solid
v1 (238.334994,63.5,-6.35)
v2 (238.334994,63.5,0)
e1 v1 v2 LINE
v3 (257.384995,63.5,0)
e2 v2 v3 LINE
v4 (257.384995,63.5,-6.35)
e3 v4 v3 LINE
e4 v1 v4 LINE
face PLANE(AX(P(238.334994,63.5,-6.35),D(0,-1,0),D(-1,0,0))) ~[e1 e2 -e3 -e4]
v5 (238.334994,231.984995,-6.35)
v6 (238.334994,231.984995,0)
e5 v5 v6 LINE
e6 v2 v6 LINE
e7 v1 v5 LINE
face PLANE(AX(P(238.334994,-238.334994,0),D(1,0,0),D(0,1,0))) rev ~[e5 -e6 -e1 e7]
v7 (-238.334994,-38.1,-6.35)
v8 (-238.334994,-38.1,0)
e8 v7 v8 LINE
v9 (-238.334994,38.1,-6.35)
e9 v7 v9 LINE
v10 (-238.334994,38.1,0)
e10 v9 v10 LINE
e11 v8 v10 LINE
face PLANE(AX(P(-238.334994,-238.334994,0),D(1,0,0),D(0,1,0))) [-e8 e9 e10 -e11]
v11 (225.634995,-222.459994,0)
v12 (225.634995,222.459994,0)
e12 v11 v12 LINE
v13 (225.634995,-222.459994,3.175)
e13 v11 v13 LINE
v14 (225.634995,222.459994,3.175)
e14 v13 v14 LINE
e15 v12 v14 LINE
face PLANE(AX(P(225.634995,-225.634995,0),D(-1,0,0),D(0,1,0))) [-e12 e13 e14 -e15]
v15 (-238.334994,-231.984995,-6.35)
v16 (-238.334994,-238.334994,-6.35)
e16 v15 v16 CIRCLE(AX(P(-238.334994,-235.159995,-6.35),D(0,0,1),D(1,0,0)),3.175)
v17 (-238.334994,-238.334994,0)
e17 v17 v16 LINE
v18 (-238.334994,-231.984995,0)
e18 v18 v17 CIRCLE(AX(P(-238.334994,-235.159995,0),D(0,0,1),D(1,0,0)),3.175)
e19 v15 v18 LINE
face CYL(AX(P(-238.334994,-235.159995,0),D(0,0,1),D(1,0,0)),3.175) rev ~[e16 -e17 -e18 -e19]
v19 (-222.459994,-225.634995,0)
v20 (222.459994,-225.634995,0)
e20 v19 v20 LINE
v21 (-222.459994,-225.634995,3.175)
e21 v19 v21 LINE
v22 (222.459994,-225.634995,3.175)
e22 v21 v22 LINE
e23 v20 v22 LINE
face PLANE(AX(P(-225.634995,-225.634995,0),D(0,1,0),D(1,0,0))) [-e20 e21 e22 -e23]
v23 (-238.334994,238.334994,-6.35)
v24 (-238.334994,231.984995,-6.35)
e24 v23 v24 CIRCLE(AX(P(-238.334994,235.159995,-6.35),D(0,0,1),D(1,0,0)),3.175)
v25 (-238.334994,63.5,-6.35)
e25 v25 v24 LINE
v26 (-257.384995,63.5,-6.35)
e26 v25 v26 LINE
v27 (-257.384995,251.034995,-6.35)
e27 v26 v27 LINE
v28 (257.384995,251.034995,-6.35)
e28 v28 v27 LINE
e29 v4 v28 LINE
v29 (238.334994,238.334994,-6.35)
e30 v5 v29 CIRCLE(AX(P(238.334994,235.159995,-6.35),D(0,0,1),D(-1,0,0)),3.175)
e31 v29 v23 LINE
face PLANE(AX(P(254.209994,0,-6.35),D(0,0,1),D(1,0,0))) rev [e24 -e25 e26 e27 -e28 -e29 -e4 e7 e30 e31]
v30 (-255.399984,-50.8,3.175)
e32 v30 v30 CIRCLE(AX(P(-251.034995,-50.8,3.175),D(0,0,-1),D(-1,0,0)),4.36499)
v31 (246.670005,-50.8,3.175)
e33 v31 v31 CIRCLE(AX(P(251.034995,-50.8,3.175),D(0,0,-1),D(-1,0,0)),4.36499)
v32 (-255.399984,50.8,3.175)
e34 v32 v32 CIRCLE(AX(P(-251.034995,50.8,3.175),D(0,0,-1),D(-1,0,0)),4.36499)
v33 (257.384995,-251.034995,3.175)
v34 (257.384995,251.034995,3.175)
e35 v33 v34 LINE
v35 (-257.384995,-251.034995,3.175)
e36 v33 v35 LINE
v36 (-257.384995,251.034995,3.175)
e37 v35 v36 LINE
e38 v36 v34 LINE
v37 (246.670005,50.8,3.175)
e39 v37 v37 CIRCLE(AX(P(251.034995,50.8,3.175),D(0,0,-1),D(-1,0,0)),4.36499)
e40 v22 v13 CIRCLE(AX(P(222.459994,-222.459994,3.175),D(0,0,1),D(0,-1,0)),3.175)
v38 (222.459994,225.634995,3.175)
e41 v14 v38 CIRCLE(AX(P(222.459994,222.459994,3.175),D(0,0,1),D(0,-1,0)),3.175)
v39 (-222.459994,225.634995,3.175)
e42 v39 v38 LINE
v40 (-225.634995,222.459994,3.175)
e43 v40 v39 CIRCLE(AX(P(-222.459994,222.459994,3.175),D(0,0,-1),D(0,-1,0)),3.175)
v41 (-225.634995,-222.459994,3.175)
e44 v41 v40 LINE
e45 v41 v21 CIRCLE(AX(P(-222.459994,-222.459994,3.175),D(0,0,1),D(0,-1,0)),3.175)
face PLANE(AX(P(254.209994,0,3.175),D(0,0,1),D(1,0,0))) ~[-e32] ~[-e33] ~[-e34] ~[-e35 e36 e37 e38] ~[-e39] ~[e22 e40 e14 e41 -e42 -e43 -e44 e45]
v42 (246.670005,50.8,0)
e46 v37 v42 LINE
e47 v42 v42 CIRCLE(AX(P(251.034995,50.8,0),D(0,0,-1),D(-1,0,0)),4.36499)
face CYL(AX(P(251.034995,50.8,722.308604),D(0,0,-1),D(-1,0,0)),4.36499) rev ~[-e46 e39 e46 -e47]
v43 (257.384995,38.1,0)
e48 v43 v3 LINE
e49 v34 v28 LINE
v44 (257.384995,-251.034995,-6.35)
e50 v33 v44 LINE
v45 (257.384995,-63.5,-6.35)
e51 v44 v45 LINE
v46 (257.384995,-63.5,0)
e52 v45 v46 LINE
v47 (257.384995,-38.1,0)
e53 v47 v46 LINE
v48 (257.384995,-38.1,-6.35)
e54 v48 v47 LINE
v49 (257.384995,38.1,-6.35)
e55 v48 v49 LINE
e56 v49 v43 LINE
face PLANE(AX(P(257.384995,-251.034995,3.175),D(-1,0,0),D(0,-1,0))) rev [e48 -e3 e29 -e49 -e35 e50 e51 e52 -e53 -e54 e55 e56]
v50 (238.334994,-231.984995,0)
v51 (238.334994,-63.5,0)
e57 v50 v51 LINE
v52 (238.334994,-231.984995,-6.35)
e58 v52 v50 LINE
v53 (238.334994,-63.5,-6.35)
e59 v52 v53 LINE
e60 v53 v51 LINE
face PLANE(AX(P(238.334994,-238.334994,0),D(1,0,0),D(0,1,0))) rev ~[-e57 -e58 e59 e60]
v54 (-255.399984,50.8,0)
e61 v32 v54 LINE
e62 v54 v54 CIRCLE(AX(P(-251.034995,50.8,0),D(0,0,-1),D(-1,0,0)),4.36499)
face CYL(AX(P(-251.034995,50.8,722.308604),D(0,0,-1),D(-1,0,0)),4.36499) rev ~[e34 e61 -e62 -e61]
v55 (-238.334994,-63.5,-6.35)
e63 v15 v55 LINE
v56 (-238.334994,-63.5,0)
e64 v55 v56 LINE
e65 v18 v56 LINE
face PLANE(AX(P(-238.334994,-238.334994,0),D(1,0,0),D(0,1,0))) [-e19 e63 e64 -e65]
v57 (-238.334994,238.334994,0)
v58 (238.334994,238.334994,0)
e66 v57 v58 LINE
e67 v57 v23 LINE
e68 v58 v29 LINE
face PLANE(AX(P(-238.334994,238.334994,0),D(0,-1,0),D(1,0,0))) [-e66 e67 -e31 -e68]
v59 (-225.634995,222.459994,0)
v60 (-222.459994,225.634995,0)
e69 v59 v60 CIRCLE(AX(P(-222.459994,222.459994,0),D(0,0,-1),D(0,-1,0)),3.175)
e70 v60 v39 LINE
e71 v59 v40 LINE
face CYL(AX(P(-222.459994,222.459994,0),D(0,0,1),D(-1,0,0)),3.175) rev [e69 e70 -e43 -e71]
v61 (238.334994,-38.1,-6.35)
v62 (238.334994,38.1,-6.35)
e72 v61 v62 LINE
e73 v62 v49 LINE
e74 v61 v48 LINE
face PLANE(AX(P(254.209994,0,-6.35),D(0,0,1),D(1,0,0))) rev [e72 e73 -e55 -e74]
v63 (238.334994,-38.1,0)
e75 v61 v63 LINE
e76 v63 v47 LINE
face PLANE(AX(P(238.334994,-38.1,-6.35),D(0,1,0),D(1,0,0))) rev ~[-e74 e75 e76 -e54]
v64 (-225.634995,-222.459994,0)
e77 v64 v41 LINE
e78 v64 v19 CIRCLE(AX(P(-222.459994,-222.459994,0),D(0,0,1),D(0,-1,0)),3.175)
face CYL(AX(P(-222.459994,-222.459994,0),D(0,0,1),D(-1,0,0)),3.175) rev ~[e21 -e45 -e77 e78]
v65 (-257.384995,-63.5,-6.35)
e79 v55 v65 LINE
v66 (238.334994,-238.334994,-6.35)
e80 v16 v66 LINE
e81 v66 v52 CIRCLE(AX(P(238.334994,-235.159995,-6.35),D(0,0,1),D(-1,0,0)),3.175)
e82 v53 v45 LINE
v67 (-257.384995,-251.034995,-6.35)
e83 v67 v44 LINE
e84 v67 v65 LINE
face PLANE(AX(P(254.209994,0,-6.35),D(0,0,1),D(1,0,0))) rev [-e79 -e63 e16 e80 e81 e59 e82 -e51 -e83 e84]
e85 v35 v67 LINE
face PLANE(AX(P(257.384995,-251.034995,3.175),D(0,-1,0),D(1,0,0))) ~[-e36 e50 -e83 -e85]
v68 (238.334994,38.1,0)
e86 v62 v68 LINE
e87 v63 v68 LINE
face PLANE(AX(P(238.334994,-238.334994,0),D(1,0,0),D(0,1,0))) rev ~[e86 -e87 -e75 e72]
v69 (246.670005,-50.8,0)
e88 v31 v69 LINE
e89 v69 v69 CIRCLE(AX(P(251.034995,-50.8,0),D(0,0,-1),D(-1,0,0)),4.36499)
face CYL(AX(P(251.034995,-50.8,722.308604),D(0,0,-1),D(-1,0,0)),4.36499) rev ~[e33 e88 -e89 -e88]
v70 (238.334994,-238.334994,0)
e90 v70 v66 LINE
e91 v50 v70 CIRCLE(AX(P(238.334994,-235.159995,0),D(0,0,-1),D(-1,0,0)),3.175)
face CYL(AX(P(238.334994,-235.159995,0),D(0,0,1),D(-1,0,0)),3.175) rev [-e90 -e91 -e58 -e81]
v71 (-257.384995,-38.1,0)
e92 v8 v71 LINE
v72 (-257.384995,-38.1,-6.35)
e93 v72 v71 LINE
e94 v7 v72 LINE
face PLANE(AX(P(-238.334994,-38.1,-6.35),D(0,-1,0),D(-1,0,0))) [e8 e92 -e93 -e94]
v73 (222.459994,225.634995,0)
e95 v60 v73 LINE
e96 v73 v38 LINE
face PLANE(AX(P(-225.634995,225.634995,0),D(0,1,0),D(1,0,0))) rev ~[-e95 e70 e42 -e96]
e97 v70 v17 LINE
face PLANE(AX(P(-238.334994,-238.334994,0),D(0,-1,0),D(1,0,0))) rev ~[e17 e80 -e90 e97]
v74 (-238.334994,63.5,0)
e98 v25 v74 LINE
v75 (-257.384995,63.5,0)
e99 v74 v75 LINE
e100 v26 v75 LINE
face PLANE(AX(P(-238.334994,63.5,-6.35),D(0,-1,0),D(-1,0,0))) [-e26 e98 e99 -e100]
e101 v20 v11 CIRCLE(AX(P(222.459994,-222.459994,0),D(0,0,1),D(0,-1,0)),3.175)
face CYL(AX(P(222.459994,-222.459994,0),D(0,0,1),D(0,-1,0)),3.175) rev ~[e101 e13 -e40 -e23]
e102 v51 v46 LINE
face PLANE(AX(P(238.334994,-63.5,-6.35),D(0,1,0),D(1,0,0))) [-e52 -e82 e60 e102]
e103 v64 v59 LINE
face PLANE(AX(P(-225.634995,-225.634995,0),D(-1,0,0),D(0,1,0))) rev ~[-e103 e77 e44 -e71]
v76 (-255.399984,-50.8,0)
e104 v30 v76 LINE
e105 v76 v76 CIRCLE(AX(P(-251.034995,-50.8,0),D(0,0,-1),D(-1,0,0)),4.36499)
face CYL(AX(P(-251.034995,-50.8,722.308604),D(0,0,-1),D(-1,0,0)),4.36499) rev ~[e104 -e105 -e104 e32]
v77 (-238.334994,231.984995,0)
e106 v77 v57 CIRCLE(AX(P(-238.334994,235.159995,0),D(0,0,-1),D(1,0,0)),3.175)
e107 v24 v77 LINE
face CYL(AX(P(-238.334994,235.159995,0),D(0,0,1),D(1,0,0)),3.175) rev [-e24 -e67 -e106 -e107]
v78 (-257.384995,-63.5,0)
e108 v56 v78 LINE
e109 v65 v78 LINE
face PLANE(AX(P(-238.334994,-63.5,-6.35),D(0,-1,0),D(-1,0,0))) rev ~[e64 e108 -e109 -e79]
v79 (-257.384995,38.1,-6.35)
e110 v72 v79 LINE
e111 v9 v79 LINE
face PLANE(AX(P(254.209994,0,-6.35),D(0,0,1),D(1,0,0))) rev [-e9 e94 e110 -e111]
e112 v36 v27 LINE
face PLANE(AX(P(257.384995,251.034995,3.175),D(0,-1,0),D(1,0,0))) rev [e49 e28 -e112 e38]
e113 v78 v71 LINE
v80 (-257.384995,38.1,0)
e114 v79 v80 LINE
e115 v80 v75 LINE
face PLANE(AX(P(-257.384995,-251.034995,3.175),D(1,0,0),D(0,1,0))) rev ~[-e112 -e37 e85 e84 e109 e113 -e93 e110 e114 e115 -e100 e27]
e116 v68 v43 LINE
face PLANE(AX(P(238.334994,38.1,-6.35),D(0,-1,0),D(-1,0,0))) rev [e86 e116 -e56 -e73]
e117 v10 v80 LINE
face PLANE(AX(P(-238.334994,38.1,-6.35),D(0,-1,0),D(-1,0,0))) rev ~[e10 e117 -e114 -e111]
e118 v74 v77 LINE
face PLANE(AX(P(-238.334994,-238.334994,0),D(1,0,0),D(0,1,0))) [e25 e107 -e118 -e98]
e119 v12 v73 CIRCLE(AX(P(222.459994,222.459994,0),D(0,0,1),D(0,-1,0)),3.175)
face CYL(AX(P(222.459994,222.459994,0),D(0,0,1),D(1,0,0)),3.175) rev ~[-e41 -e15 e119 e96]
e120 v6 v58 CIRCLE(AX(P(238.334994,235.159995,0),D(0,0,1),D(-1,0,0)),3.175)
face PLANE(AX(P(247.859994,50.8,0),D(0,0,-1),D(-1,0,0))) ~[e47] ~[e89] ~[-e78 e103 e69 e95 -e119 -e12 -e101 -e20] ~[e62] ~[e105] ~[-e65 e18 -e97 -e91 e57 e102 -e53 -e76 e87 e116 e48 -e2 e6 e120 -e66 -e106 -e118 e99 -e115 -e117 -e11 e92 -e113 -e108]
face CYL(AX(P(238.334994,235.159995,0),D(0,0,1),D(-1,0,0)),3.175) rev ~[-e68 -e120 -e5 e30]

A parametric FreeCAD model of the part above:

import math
import FreeCAD as App
import Part
import Sketcher

V = App.Vector
Q = App.Units.Quantity


def edges_at(feature, points):
    """Names of the edges that pass closest to the given points."""
    edges = feature.Shape.Edges
    near = lambda p: min(range(len(edges)), key=lambda i: edges[i].distToShape(Part.Vertex(*p))[0])
    return sorted({f"Edge{near(p) + 1}" for p in points})


def add_polygon(sketch, points):
    """Adds a closed chain of lines whose ends are joined by coincident constraints."""
    first, n = sketch.GeometryCount, len(points)
    for a, b in zip(points, points[1:] + points[:1]):
        sketch.addGeometry(Part.LineSegment(App.Vector(*a, 0), App.Vector(*b, 0)), False)
    for i in range(n):
        sketch.addConstraint(Sketcher.Constraint("Coincident", first + i, 2, first + (i + 1) % n, 1))

doc = App.newDocument("Part")
body = doc.addObject("PartDesign::Body", "Body")

# Sketch on XY plane
sketch1 = body.newObject("Sketcher::SketchObject", "Sketch")
sketch1.AttachmentSupport = (doc.getObject("XY_Plane"), [""])
sketch1.MapMode = "FlatFace"
add_polygon(sketch1, [(-251, 251), (-251, -251), (251, -251), (251, 251)])  # lines 0-3
add_polygon(sketch1, [(238, -238), (-238, -238), (-238, 238), (238, 238)])  # lines 4-7
sketch1.addConstraint([
    Sketcher.Constraint("Vertical", 0),
    Sketcher.Constraint("Horizontal", 1),
    Sketcher.Constraint("Vertical", 2),
    Sketcher.Constraint("Horizontal", 3),
    Sketcher.Constraint("Horizontal", 4),
    Sketcher.Constraint("Vertical", 5),
    Sketcher.Constraint("Horizontal", 6),
    Sketcher.Constraint("Vertical", 7),
    Sketcher.Constraint("Symmetric", 0, 2, 2, 2, -1, 1),
    Sketcher.Constraint("Symmetric", 4, 2, 6, 2, -1, 1),
    Sketcher.Constraint("Equal", 3, 0),
    Sketcher.Constraint("Equal", 6, 5),
    Sketcher.Constraint("DistanceX", 0, 2, 4, 2, Q("0.5 in")),
    Sketcher.Constraint("DistanceX", 1, 1, 1, 2, 502.069989),
])
pad1 = body.newObject("PartDesign::Pad", "Pad")
pad1.Profile = sketch1
pad1.Length = Q("0.25 in")
pad1.Reversed = True

# Sketch on XY plane
sketch2 = body.newObject("Sketcher::SketchObject", "Sketch001")
sketch2.AttachmentSupport = (doc.getObject("XY_Plane"), [""])
sketch2.MapMode = "FlatFace"
add_polygon(sketch2, [(-251, 251), (-251, -251), (251, -251), (251, 251)])  # lines 0-3
add_polygon(sketch2, [(226, -226), (-226, -226), (-226, 226), (226, 226)])  # lines 4-7
sketch2.addConstraint([
    Sketcher.Constraint("Vertical", 0),
    Sketcher.Constraint("Horizontal", 1),
    Sketcher.Constraint("Vertical", 2),
    Sketcher.Constraint("Horizontal", 3),
    Sketcher.Constraint("Horizontal", 4),
    Sketcher.Constraint("Vertical", 5),
    Sketcher.Constraint("Horizontal", 6),
    Sketcher.Constraint("Vertical", 7),
    Sketcher.Constraint("Symmetric", 0, 2, 2, 2, -1, 1),
    Sketcher.Constraint("Symmetric", 4, 2, 6, 2, -1, 1),
    Sketcher.Constraint("Equal", 3, 0),
    Sketcher.Constraint("Equal", 6, 5),
    Sketcher.Constraint("DistanceX", 0, 2, 4, 2, Q("1 in")),
    Sketcher.Constraint("DistanceX", 1, 1, 1, 2, 502.069989),
])
pad2 = body.newObject("PartDesign::Pad", "Pad001")
pad2.Profile = sketch2
pad2.Length = Q("0.125 in")

# Sketch on XY plane
sketch3 = body.newObject("Sketcher::SketchObject", "Sketch002")
sketch3.AttachmentSupport = (doc.getObject("XY_Plane"), [""])
sketch3.MapMode = "FlatFace"
sketch3.AttachmentOffset = App.Placement(V(0, 0, 0.125 * 25.4), App.Rotation())
add_polygon(sketch3, [(-257, 251), (-257, -251), (-251, -251), (-251, 251)])  # lines 0-3
sketch3.addConstraint([
    Sketcher.Constraint("Vertical", 0),
    Sketcher.Constraint("Horizontal", 1),
    Sketcher.Constraint("Vertical", 2),
    Sketcher.Constraint("Horizontal", 3),
    Sketcher.Constraint("DistanceX", 1, 1, 1, 2, Q("0.25 in")),
    Sketcher.Constraint("DistanceY", 0, 2, 0, 1, 502.069989),
    Sketcher.Constraint("DistanceX", 0, 2, -1, 1, 257.384995),
    Sketcher.Constraint("DistanceY", 0, 2, -1, 1, 251.034995),
])
pad3 = body.newObject("PartDesign::Pad", "Pad002")
pad3.Profile = sketch3
pad3.Length = Q("0.375 in")
pad3.Reversed = True
doc.recompute()

mirrored = body.newObject("PartDesign::Mirrored", "Mirrored")
mirrored.Originals = [pad3]
mirrored.MirrorPlane = (doc.getObject("YZ_Plane"), [""])
body.Tip = mirrored

# Sketch on XY plane
sketch4 = body.newObject("Sketcher::SketchObject", "Sketch003")
sketch4.AttachmentSupport = (doc.getObject("XY_Plane"), [""])
sketch4.MapMode = "FlatFace"
sketch4.AttachmentOffset = App.Placement(V(0, 0, 0.125 * 25.4), App.Rotation())
sketch4.addGeometry([
    Part.Circle(V(251, -50.8, 0), V(0, 0, 1), 4.4),
    Part.Circle(V(251, 50.8, 0), V(0, 0, 1), 4.4),
    Part.Circle(V(-251, -50.8, 0), V(0, 0, 1), 4.4),
    Part.Circle(V(-251, 50.8, 0), V(0, 0, 1), 4.4),
], False)
sketch4.addConstraint([
    Sketcher.Constraint("Equal", 0, 1),
    Sketcher.Constraint("Equal", 1, 2),
    Sketcher.Constraint("Equal", 2, 3),
    Sketcher.Constraint("Symmetric", 1, 3, 2, 3, -1, 1),
    Sketcher.Constraint("Symmetric", 0, 3, 3, 3, -1, 1),
    Sketcher.Constraint("Symmetric", 0, 3, 2, 3, -2),
    Sketcher.Constraint("DistanceY", 0, 3, -1, 1, Q("2 in")),
    Sketcher.Constraint("Diameter", 0, Q("0.3437 in")),
    Sketcher.Constraint("DistanceX", 2, 3, 0, 3, 502.069989),
])
doc.recompute()
hole = body.newObject("PartDesign::Hole", "Hole")
hole.Profile = sketch4
hole.ThreadType = "None"
hole.Diameter = Q("0.3437 in")
hole.DepthType = "ThroughAll"

# Sketch on XY plane
sketch5 = body.newObject("Sketcher::SketchObject", "Sketch004")
sketch5.AttachmentSupport = (doc.getObject("XY_Plane"), [""])
sketch5.MapMode = "FlatFace"
sketch5.AttachmentOffset = App.Placement(V(0, 0, -0.25 * 25.4), App.Rotation())
add_polygon(sketch5, [(-238, 64), (-238, 38), (-257, 38), (-257, 64)])  # lines 0-3
sketch5.addConstraint([
    Sketcher.Constraint("Vertical", 0),
    Sketcher.Constraint("Horizontal", 1),
    Sketcher.Constraint("Vertical", 2),
    Sketcher.Constraint("Horizontal", 3),
    Sketcher.Constraint("DistanceY", 0, 2, 0, 1, Q("1 in")),
    Sketcher.Constraint("DistanceX", 1, 2, 1, 1, Q("0.75 in")),
    Sketcher.Constraint("DistanceY", -1, 1, 0, 2, Q("1.5 in")),
    Sketcher.Constraint("DistanceX", 0, 2, -1, 1, 238.334994),
])
pocket1 = body.newObject("PartDesign::Pocket", "Pocket")
pocket1.Profile = sketch5
pocket1.Length = Q("0.25 in")
pocket1.Reversed = True
doc.recompute()

linearpattern = body.newObject("PartDesign::LinearPattern", "LinearPattern")
linearpattern.Originals = [pocket1]
linearpattern.Direction = (doc.getObject("Y_Axis"), [""])
linearpattern.Mode = "offset"
linearpattern.Offset = Q("4 in")
linearpattern.Occurrences = 2
linearpattern.Reversed = True
body.Tip = linearpattern
doc.recompute()

mirrored2 = body.newObject("PartDesign::Mirrored", "Mirrored001")
mirrored2.Originals = [pocket1]
mirrored2.MirrorPlane = (doc.getObject("YZ_Plane"), [""])
body.Tip = mirrored2

# Sketch on XY plane
sketch6 = body.newObject("Sketcher::SketchObject", "Sketch005")
sketch6.AttachmentSupport = (doc.getObject("XY_Plane"), [""])
sketch6.MapMode = "FlatFace"
sketch6.AttachmentOffset = App.Placement(V(0, 0, -0.25 * 25.4), App.Rotation())
add_polygon(sketch6, [(238, -64), (238, -38), (257, -38), (257, -64)])  # lines 0-3
sketch6.addConstraint([
    Sketcher.Constraint("Vertical", 0),
    Sketcher.Constraint("Horizontal", 1),
    Sketcher.Constraint("Vertical", 2),
    Sketcher.Constraint("Horizontal", 3),
    Sketcher.Constraint("DistanceY", 0, 1, 0, 2, Q("1 in")),
    Sketcher.Constraint("DistanceX", 1, 1, 1, 2, Q("0.75 in")),
    Sketcher.Constraint("DistanceY", 0, 2, -1, 1, Q("1.5 in")),
    Sketcher.Constraint("DistanceX", -1, 1, 0, 2, 238.334994),
])
pocket2 = body.newObject("PartDesign::Pocket", "Pocket001")
pocket2.Profile = sketch6
pocket2.Length = Q("0.25 in")
pocket2.Reversed = True

# Sketch on XY plane
sketch7 = body.newObject("Sketcher::SketchObject", "Sketch006")
sketch7.AttachmentSupport = (doc.getObject("XY_Plane"), [""])
sketch7.MapMode = "FlatFace"
sketch7.addGeometry([
    Part.LineSegment(V(235.2, 238.3, 0), V(238.3, 238.3, 0)),  # 0
    Part.ArcOfCircle(Part.Circle(V(238.3, 235.2, 0), V(0, 0, 1), 3.2), math.radians(180), math.radians(450)),  # 1
    Part.LineSegment(V(235.2, 235.2, 0), V(235.2, 238.3, 0)),  # 2
    Part.LineSegment(V(-235.2, 238.3, 0), V(-235.2, 235.2, 0)),  # 3
    Part.ArcOfCircle(Part.Circle(V(-238.3, 235.2, 0), V(0, 0, 1), 3.2), math.radians(90), math.radians(360)),  # 4
    Part.LineSegment(V(-238.3, 238.3, 0), V(-235.2, 238.3, 0)),  # 5
    Part.LineSegment(V(-235.2, -238.3, 0), V(-238.3, -238.3, 0)),  # 6
    Part.ArcOfCircle(Part.Circle(V(-238.3, -235.2, 0), V(0, 0, 1), 3.2), math.radians(0), math.radians(270)),  # 7
    Part.LineSegment(V(-235.2, -235.2, 0), V(-235.2, -238.3, 0)),  # 8
    Part.LineSegment(V(235.2, -238.3, 0), V(235.2, -235.2, 0)),  # 9
    Part.ArcOfCircle(Part.Circle(V(238.3, -235.2, 0), V(0, 0, 1), 3.2), math.radians(-90), math.radians(180)),  # 10
    Part.LineSegment(V(238.3, -238.3, 0), V(235.2, -238.3, 0)),  # 11
], False)
sketch7.addConstraint([
    Sketcher.Constraint("Tangent", 0, 2, 1, 2),
    Sketcher.Constraint("Tangent", 1, 1, 2, 1),
    Sketcher.Constraint("Coincident", 2, 2, 0, 1),
    Sketcher.Constraint("Tangent", 3, 2, 4, 2),
    Sketcher.Constraint("Tangent", 4, 1, 5, 1),
    Sketcher.Constraint("Coincident", 5, 2, 3, 1),
    Sketcher.Constraint("Tangent", 6, 2, 7, 2),
    Sketcher.Constraint("Tangent", 7, 1, 8, 1),
    Sketcher.Constraint("Coincident", 8, 2, 6, 1),
    Sketcher.Constraint("Tangent", 9, 2, 10, 2),
    Sketcher.Constraint("Tangent", 10, 1, 11, 1),
    Sketcher.Constraint("Coincident", 11, 2, 9, 1),
    Sketcher.Constraint("Horizontal", 0),
    Sketcher.Constraint("Vertical", 2),
    Sketcher.Constraint("Vertical", 3),
    Sketcher.Constraint("Horizontal", 5),
    Sketcher.Constraint("Horizontal", 6),
    Sketcher.Constraint("Vertical", 8),
    Sketcher.Constraint("Vertical", 9),
    Sketcher.Constraint("Horizontal", 11),
    Sketcher.Constraint("Equal", 1, 4),
    Sketcher.Constraint("Equal", 4, 7),
    Sketcher.Constraint("Equal", 7, 10),
    Sketcher.Constraint("Symmetric", 1, 3, 7, 3, -1, 1),
    Sketcher.Constraint("Symmetric", 4, 3, 10, 3, -1, 1),
    Sketcher.Constraint("Symmetric", 1, 3, 4, 3, -2),
    Sketcher.Constraint("Radius", 1, Q("0.125 in")),
    Sketcher.Constraint("DistanceX", 4, 3, 1, 3, 476.669989),
    Sketcher.Constraint("DistanceY", 7, 3, 4, 3, 470.319989),
])
pocket3 = body.newObject("PartDesign::Pocket", "Pocket002")
pocket3.Profile = sketch7
pocket3.Type = "ThroughAll"
doc.recompute()

fillet = body.newObject("PartDesign::Fillet", "Fillet")
fillet.Base = (pocket3, edges_at(pocket3, [
    (-225.635, 225.635, 1.587),
    (-225.635, -225.635, 1.587),
    (225.635, -225.635, 1.587),
    (225.635, 225.635, 1.587),
]))
fillet.Radius = Q("0.125 in")

doc.recompute()
